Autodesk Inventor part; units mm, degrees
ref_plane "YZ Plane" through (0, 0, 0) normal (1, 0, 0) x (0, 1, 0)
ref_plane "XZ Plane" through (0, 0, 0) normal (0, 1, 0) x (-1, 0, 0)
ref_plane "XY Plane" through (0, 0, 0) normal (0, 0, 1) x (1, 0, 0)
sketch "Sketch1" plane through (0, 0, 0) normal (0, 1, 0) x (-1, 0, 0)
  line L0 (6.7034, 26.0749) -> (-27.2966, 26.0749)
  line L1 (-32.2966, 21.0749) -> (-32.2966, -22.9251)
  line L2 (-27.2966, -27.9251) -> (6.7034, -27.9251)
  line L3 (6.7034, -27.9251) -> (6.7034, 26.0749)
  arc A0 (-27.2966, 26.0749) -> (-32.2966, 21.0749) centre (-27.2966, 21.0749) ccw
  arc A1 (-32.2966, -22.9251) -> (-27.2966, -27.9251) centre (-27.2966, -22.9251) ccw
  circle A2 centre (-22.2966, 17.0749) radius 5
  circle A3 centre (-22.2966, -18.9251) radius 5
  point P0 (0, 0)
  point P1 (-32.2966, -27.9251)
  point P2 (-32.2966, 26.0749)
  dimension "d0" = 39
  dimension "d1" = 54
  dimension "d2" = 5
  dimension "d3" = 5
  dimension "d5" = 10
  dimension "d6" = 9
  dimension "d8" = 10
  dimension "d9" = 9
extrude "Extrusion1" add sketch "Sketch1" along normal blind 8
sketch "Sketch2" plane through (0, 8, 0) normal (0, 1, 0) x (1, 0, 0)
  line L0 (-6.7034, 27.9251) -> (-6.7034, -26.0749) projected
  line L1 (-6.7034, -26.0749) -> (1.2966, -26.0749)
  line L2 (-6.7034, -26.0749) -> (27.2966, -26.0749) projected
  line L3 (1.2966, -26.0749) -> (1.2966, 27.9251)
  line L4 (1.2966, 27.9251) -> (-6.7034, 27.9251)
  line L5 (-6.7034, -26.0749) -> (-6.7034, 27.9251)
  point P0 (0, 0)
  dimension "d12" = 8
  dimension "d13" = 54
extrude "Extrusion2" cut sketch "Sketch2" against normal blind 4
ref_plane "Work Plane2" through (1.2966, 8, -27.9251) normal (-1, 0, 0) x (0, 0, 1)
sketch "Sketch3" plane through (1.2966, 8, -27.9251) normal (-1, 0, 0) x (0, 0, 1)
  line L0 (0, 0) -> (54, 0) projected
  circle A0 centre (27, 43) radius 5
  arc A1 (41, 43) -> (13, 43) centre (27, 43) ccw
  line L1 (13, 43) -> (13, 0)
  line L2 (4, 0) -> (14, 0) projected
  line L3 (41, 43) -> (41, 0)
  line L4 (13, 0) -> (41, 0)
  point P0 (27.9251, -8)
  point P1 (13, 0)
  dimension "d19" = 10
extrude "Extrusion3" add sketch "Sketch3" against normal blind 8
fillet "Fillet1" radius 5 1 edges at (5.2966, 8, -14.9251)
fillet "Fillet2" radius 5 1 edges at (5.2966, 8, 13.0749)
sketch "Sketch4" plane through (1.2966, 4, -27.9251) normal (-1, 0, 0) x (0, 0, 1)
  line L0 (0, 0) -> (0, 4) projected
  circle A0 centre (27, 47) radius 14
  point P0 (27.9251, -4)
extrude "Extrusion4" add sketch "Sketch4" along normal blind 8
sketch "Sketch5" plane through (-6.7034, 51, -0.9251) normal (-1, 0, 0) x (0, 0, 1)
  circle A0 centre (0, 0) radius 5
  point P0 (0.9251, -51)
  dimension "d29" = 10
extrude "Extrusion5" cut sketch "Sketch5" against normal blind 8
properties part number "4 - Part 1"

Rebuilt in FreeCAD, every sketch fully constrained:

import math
import FreeCAD as App
import Part
import Sketcher

V = App.Vector


def edges_at(feature, points):
    """Names of the edges that pass closest to the given points."""
    edges = feature.Shape.Edges
    near = lambda p: min(range(len(edges)), key=lambda i: edges[i].distToShape(Part.Vertex(*p))[0])
    return sorted({f"Edge{near(p) + 1}" for p in points})

doc = App.newDocument("Part")
body = doc.addObject("PartDesign::Body", "Body")

# Sketch on XZ plane
sketch1 = doc.addObject("Sketcher::SketchObject", "Sketch")
body.addObject(sketch1)
sketch1.AttachmentSupport = (doc.XZ_Plane, [""])
sketch1.MapMode = "FlatFace"
sketch1.addGeometry([
    Part.LineSegment(V(-6.7, -27.9, 0), V(-6.7, 26.1, 0)),  # 0
    Part.LineSegment(V(-6.7, 26.1, 0), V(27.3, 26.1, 0)),  # 1
    Part.ArcOfCircle(Part.Circle(V(27.3, 21.1, 0), V(0, 0, 1), 5), math.radians(0), math.radians(90)),  # 2
    Part.LineSegment(V(32.3, 21.1, 0), V(32.3, -22.9, 0)),  # 3
    Part.ArcOfCircle(Part.Circle(V(27.3, -22.9, 0), V(0, 0, 1), 5), math.radians(-90), math.radians(0)),  # 4
    Part.LineSegment(V(27.3, -27.9, 0), V(-6.7, -27.9, 0)),  # 5
    Part.Circle(V(22.3, -18.9, 0), V(0, 0, 1), 5),  # 6
    Part.Circle(V(22.3, 17.1, 0), V(0, 0, 1), 5),  # 7
], False)
sketch1.addConstraint([
    Sketcher.Constraint("Coincident", 0, 2, 1, 1),
    Sketcher.Constraint("Tangent", 1, 2, 2, 2),
    Sketcher.Constraint("Tangent", 2, 1, 3, 1),
    Sketcher.Constraint("Tangent", 3, 2, 4, 2),
    Sketcher.Constraint("Tangent", 4, 1, 5, 1),
    Sketcher.Constraint("Coincident", 5, 2, 0, 1),
    Sketcher.Constraint("Vertical", 0),
    Sketcher.Constraint("Horizontal", 1),
    Sketcher.Constraint("Vertical", 3),
    Sketcher.Constraint("Horizontal", 5),
    Sketcher.Constraint("Equal", 2, 4),
    Sketcher.Constraint("Equal", 4, 6),
    Sketcher.Constraint("Equal", 6, 7),
    Sketcher.Constraint("Vertical", 6, 3, 7, 3),
    Sketcher.Constraint("Diameter", 6, 10.0),
    Sketcher.Constraint("DistanceY", 0, 1, 0, 2, 54.0),
    Sketcher.Constraint("DistanceX", 6, 3, 4, 3, 5.0),
    Sketcher.Constraint("DistanceY", 7, 3, 0, 2, 9.0),
    Sketcher.Constraint("DistanceX", 0, 2, 2, 1, 39.0),
    Sketcher.Constraint("DistanceY", 4, 1, 6, 3, 9.0),
    Sketcher.Constraint("DistanceY", -1, 1, 2, 3, 21.075),
    Sketcher.Constraint("DistanceX", -1, 1, 2, 3, 27.2966),
])
pad1 = doc.addObject("PartDesign::Pad", "Pad")
body.addObject(pad1)
pad1.Profile = sketch1
pad1.Length = 8
pad1.Reversed = True

# Sketch on XZ plane
sketch2 = doc.addObject("Sketcher::SketchObject", "Sketch001")
body.addObject(sketch2)
sketch2.AttachmentSupport = (doc.XZ_Plane, [""])
sketch2.MapMode = "FlatFace"
sketch2.AttachmentOffset = App.Placement(V(0, 0, -8), App.Rotation())
sketch2.addGeometry([
    Part.LineSegment(V(1, -28, 0), V(-7, -28, 0)),
    Part.LineSegment(V(-7, -28, 0), V(-7, 26, 0)),
    Part.LineSegment(V(-7, 26, 0), V(1, 26, 0)),
    Part.LineSegment(V(1, 26, 0), V(1, -28, 0)),
], False)
sketch2.addConstraint([
    Sketcher.Constraint("Coincident", 0, 2, 1, 1),
    Sketcher.Constraint("Coincident", 1, 2, 2, 1),
    Sketcher.Constraint("Coincident", 2, 2, 3, 1),
    Sketcher.Constraint("Coincident", 3, 2, 0, 1),
    Sketcher.Constraint("Horizontal", 0),
    Sketcher.Constraint("Vertical", 1),
    Sketcher.Constraint("Horizontal", 2),
    Sketcher.Constraint("Vertical", 3),
    Sketcher.Constraint("DistanceX", 0, 2, 0, 1, 8.0),
    Sketcher.Constraint("DistanceY", 1, 1, 1, 2, 54.0),
    Sketcher.Constraint("DistanceY", 0, 2, -1, 1, 27.925),
    Sketcher.Constraint("DistanceX", 0, 2, -1, 1, 6.7034),
])
pocket1 = doc.addObject("PartDesign::Pocket", "Pocket")
body.addObject(pocket1)
pocket1.Profile = sketch2
pocket1.Length = 4
pocket1.Reversed = True

# Sketch on YZ plane
sketch3 = doc.addObject("Sketcher::SketchObject", "Sketch002")
body.addObject(sketch3)
sketch3.AttachmentSupport = (doc.YZ_Plane, [""])
sketch3.MapMode = "FlatFace"
sketch3.AttachmentOffset = App.Placement(V(0, 0, 1.2966), App.Rotation())
sketch3.addGeometry([
    Part.LineSegment(V(51, -15, 0), V(8, -15, 0)),  # 0
    Part.LineSegment(V(8, -15, 0), V(8, 13, 0)),  # 1
    Part.LineSegment(V(8, 13, 0), V(51, 13, 0)),  # 2
    Part.ArcOfCircle(Part.Circle(V(51, -1, 0), V(0, 0, 1), 14), math.radians(-90), math.radians(90)),  # 3
    Part.Circle(V(51, -1, 0), V(0, 0, 1), 5),  # 4
], False)
sketch3.addConstraint([
    Sketcher.Constraint("Coincident", 0, 2, 1, 1),
    Sketcher.Constraint("Coincident", 1, 2, 2, 1),
    Sketcher.Constraint("Tangent", 2, 2, 3, 2),
    Sketcher.Constraint("Tangent", 3, 1, 0, 1),
    Sketcher.Constraint("Horizontal", 0),
    Sketcher.Constraint("Vertical", 1),
    Sketcher.Constraint("Horizontal", 2),
    Sketcher.Constraint("Coincident", 4, 3, 3, 3),
    Sketcher.Constraint("Diameter", 4, 10.0),
    Sketcher.Constraint("Radius", 3, 14.0),
    Sketcher.Constraint("DistanceX", 0, 2, 0, 1, 43.0),
    Sketcher.Constraint("DistanceX", -1, 1, 3, 3, 51.0),
    Sketcher.Constraint("DistanceY", 3, 3, -1, 1, 0.925),
])
pad2 = doc.addObject("PartDesign::Pad", "Pad001")
body.addObject(pad2)
pad2.Profile = sketch3
pad2.Length = 8
doc.recompute()

fillet = doc.addObject("PartDesign::Fillet", "Fillet")
body.addObject(fillet)
fillet.Base = (pad2, edges_at(pad2, [(5.297, 8, -14.925)]))
fillet.Radius = 5
doc.recompute()

fillet2 = doc.addObject("PartDesign::Fillet", "Fillet001")
body.addObject(fillet2)
fillet2.Base = (fillet, edges_at(fillet, [(5.297, 8, 13.075)]))
fillet2.Radius = 5

# Sketch on YZ plane
sketch4 = doc.addObject("Sketcher::SketchObject", "Sketch003")
body.addObject(sketch4)
sketch4.AttachmentSupport = (doc.YZ_Plane, [""])
sketch4.MapMode = "FlatFace"
sketch4.AttachmentOffset = App.Placement(V(0, 0, 1.2966), App.Rotation())
sketch4.addGeometry(Part.Circle(V(51, -1, 0), V(0, 0, 1), 14), False)
sketch4.addConstraint([
    Sketcher.Constraint("Diameter", 0, 28.0),
    Sketcher.Constraint("DistanceX", -1, 1, 0, 3, 51.0),
    Sketcher.Constraint("DistanceY", 0, 3, -1, 1, 0.925),
])
pad3 = doc.addObject("PartDesign::Pad", "Pad002")
body.addObject(pad3)
pad3.Profile = sketch4
pad3.Length = 8
pad3.Reversed = True

# Sketch on YZ plane
sketch5 = doc.addObject("Sketcher::SketchObject", "Sketch004")
body.addObject(sketch5)
sketch5.AttachmentSupport = (doc.YZ_Plane, [""])
sketch5.MapMode = "FlatFace"
sketch5.AttachmentOffset = App.Placement(V(0, 0, -6.7034), App.Rotation())
sketch5.addGeometry(Part.Circle(V(51, -1, 0), V(0, 0, 1), 5), False)
sketch5.addConstraint([
    Sketcher.Constraint("Diameter", 0, 10.0),
    Sketcher.Constraint("DistanceX", -1, 1, 0, 3, 51.0),
    Sketcher.Constraint("DistanceY", 0, 3, -1, 1, 0.925),
])
pocket2 = doc.addObject("PartDesign::Pocket", "Pocket001")
body.addObject(pocket2)
pocket2.Profile = sketch5
pocket2.Length = 8
pocket2.Reversed = True

doc.recompute()
